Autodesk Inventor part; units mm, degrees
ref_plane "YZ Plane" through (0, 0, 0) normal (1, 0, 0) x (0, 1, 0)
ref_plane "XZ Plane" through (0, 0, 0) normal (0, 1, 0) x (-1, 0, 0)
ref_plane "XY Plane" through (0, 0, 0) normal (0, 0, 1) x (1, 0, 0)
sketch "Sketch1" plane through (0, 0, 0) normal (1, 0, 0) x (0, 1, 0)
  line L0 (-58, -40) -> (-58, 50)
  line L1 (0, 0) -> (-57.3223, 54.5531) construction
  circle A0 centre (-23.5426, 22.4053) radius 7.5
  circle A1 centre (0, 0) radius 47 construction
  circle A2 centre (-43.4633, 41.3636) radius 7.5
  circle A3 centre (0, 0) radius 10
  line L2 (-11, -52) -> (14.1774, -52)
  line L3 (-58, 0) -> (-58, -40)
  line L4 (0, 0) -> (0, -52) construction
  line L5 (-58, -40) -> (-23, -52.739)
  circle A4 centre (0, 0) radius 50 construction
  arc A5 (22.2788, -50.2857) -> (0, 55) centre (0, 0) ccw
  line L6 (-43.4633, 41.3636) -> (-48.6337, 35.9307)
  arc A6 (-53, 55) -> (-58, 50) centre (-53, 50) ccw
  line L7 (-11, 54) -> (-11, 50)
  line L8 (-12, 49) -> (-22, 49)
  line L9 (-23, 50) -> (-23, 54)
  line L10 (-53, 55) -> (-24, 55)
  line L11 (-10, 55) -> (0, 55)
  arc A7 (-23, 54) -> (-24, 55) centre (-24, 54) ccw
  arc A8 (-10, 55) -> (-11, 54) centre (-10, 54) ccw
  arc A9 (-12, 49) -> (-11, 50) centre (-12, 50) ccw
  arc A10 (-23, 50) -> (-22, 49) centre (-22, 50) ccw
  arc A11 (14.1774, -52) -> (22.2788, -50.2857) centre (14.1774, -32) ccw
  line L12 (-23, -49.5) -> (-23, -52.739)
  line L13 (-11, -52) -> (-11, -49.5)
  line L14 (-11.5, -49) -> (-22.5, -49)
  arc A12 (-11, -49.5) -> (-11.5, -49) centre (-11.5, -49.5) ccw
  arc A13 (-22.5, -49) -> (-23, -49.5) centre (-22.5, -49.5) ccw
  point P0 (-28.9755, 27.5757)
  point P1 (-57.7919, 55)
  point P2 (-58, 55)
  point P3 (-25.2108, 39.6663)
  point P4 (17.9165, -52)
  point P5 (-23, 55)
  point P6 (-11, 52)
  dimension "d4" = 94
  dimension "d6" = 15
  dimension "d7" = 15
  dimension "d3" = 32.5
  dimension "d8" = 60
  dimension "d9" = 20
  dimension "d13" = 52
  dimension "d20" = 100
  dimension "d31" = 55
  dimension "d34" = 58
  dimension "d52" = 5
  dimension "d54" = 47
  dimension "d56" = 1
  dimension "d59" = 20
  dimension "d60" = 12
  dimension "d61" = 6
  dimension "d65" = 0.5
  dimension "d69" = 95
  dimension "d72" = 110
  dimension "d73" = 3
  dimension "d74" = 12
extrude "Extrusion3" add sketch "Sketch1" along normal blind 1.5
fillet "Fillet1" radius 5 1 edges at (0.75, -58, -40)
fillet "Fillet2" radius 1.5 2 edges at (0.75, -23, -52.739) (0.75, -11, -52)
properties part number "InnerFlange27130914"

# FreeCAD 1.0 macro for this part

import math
import FreeCAD as App
import Part
import Sketcher
Q = App.Units.Quantity


def edges_at(feature, points):
    """Names of the edges that pass closest to the given points."""
    edges = feature.Shape.Edges
    near = lambda p: min(range(len(edges)), key=lambda i: edges[i].distToShape(Part.Vertex(*p))[0])
    return sorted({f"Edge{near(p) + 1}" for p in points})

doc = App.newDocument("Part")
params = doc.addObject("Spreadsheet::Sheet", "Params")
for row, (alias, value) in enumerate([
    ("sketch1_diameter", "20 mm"),
    ("sketch1_diameter2", "15 mm"),
    ("sketch1_radius", "20 mm"),
    ("sketch1_radius2", "55 mm"),
    ("sketch1_radius3", "1 mm"),
    ("pad1_length", "1.5 mm"),
    ("fillet_radius", "5 mm"),
    ("fillet2_radius", "1.5 mm"),
], start=1):
    params.set(f"A{row}", alias)
    params.set(f"B{row}", "=" + value)
    params.setAlias(f"B{row}", alias)

body = doc.addObject("PartDesign::Body", "Body")

sketch1 = body.newObject("Sketcher::SketchObject", "Sketch")
sketch1.AttachmentSupport = (doc.getObject("YZ_Plane"), [""])
sketch1.MapMode = "FlatFace"
sketch1.addGeometry([
    Part.LineSegment(App.Vector(-58, 50, 0), App.Vector(-58, -40, 0)),
    Part.LineSegment(App.Vector(-58, -40, 0), App.Vector(-23, -52.7, 0)),
    Part.LineSegment(App.Vector(-23, -52.7, 0), App.Vector(-23, -49.5, 0)),
    Part.ArcOfCircle(Part.Circle(App.Vector(-22.5, -49.5, 0), App.Vector(0, 0, 1), 0.5), math.radians(90), math.radians(180)),
    Part.LineSegment(App.Vector(-22.5, -49, 0), App.Vector(-11.5, -49, 0)),
    Part.ArcOfCircle(Part.Circle(App.Vector(-11.5, -49.5, 0), App.Vector(0, 0, 1), 0.5), math.radians(0), math.radians(90)),
    Part.LineSegment(App.Vector(-11, -49.5, 0), App.Vector(-11, -52, 0)),
    Part.LineSegment(App.Vector(-11, -52, 0), App.Vector(14.2, -52, 0)),
    Part.ArcOfCircle(Part.Circle(App.Vector(14.2, -32, 0), App.Vector(0, 0, 1), 20), math.radians(-90), math.radians(-66)),
    Part.ArcOfCircle(Part.Circle(App.Vector(0, 0, 0), App.Vector(0, 0, 1), 55), math.radians(-66), math.radians(90)),
    Part.LineSegment(App.Vector(0, 55, 0), App.Vector(-10, 55, 0)),
    Part.ArcOfCircle(Part.Circle(App.Vector(-10, 54, 0), App.Vector(0, 0, 1), 1), math.radians(90), math.radians(180)),
    Part.LineSegment(App.Vector(-11, 54, 0), App.Vector(-11, 50, 0)),
    Part.ArcOfCircle(Part.Circle(App.Vector(-12, 50, 0), App.Vector(0, 0, 1), 1), math.radians(-90), math.radians(0)),
    Part.LineSegment(App.Vector(-12, 49, 0), App.Vector(-22, 49, 0)),
    Part.ArcOfCircle(Part.Circle(App.Vector(-22, 50, 0), App.Vector(0, 0, 1), 1), math.radians(180), math.radians(270)),
    Part.LineSegment(App.Vector(-23, 50, 0), App.Vector(-23, 54, 0)),
    Part.ArcOfCircle(Part.Circle(App.Vector(-24, 54, 0), App.Vector(0, 0, 1), 1), math.radians(0), math.radians(90)),
    Part.LineSegment(App.Vector(-24, 55, 0), App.Vector(-53, 55, 0)),
    Part.ArcOfCircle(Part.Circle(App.Vector(-53, 50, 0), App.Vector(0, 0, 1), 5), math.radians(90), math.radians(180)),
    Part.Circle(App.Vector(0, 0, 0), App.Vector(0, 0, 1), 10),
    Part.Circle(App.Vector(-23.5, 22.4, 0), App.Vector(0, 0, 1), 7.5),
    Part.Circle(App.Vector(-43.5, 41.4, 0), App.Vector(0, 0, 1), 7.5),
], False)
sketch1.addConstraint([
    Sketcher.Constraint("Coincident", 0, 2, 1, 1),
    Sketcher.Constraint("Coincident", 1, 2, 2, 1),
    Sketcher.Constraint("Tangent", 2, 2, 3, 2),
    Sketcher.Constraint("Tangent", 3, 1, 4, 1),
    Sketcher.Constraint("Tangent", 4, 2, 5, 2),
    Sketcher.Constraint("Tangent", 5, 1, 6, 1),
    Sketcher.Constraint("Coincident", 6, 2, 7, 1),
    Sketcher.Constraint("Tangent", 7, 2, 8, 1),
    Sketcher.Constraint("Tangent", 8, 2, 9, 1),
    Sketcher.Constraint("Tangent", 9, 2, 10, 1),
    Sketcher.Constraint("Tangent", 10, 2, 11, 1),
    Sketcher.Constraint("Tangent", 11, 2, 12, 1),
    Sketcher.Constraint("Tangent", 12, 2, 13, 2),
    Sketcher.Constraint("Tangent", 13, 1, 14, 1),
    Sketcher.Constraint("Tangent", 14, 2, 15, 2),
    Sketcher.Constraint("Tangent", 15, 1, 16, 1),
    Sketcher.Constraint("Tangent", 16, 2, 17, 1),
    Sketcher.Constraint("Tangent", 17, 2, 18, 1),
    Sketcher.Constraint("Tangent", 18, 2, 19, 1),
    Sketcher.Constraint("Tangent", 19, 2, 0, 1),
    Sketcher.Constraint("Vertical", 0),
    Sketcher.Constraint("Vertical", 2),
    Sketcher.Constraint("Horizontal", 4),
    Sketcher.Constraint("Vertical", 6),
    Sketcher.Constraint("Horizontal", 7),
    Sketcher.Constraint("Horizontal", 10),
    Sketcher.Constraint("Vertical", 12),
    Sketcher.Constraint("Horizontal", 14),
    Sketcher.Constraint("Vertical", 16),
    Sketcher.Constraint("Horizontal", 18),
    Sketcher.Constraint("Coincident", 9, 3, -1, 1),
    Sketcher.Constraint("Coincident", 20, 3, -1, 1),
    Sketcher.Constraint("Equal", 3, 5),
    Sketcher.Constraint("Equal", 11, 13),
    Sketcher.Constraint("Equal", 13, 15),
    Sketcher.Constraint("Equal", 15, 17),
    Sketcher.Constraint("Equal", 21, 22),
    Sketcher.Constraint("Horizontal", 11, 3, 17, 3),
    Sketcher.Constraint("Horizontal", 15, 3, 19, 3),
    Sketcher.Constraint("Vertical", 6, 2, 11, 2),
    Sketcher.Constraint("Vertical", 2, 2, 15, 1),
    Sketcher.Constraint("Equal", 10, 14),
    Sketcher.Constraint("Diameter", 20, 20.0),
    Sketcher.Constraint("Diameter", 21, 15.0),
    Sketcher.Constraint("Radius", 8, 20.0),
    Sketcher.Constraint("Radius", 9, 55.0),
    Sketcher.Constraint("Radius", 11, 1.0),
    Sketcher.Constraint("Radius", 19, 5.0),
    Sketcher.Constraint("Radius", 3, 0.5),
    Sketcher.Constraint("Angle", 1, Q("-20 deg")),
    Sketcher.Constraint("DistanceX", 13, 3, -1, 1, 12.0),
    Sketcher.Constraint("DistanceX", 0, 2, -1, 1, 58.0),
    Sketcher.Constraint("DistanceY", 6, 2, -1, 1, 52.0),
    Sketcher.Constraint("DistanceY", 6, 2, 4, 2, 3.0),
    Sketcher.Constraint("DistanceY", 0, 2, 0, 1, 90.0),
    Sketcher.Constraint("DistanceX", 21, 3, -1, 1, 23.5426),
    Sketcher.Constraint("DistanceY", -1, 1, 21, 3, 22.4053),
    Sketcher.Constraint("DistanceX", 22, 3, -1, 1, 43.4633),
    Sketcher.Constraint("DistanceY", -1, 1, 22, 3, 41.3636),
])
sketch1.setExpression("Constraints[42]", "Params.sketch1_diameter")
sketch1.setExpression("Constraints[43]", "Params.sketch1_diameter2")
sketch1.setExpression("Constraints[44]", "Params.sketch1_radius")
sketch1.setExpression("Constraints[45]", "Params.sketch1_radius2")
sketch1.setExpression("Constraints[46]", "Params.sketch1_radius3")
pad1 = body.newObject("PartDesign::Pad", "Pad")
pad1.Profile = sketch1
pad1.setExpression("Length", "Params.pad1_length")
doc.recompute()

fillet = body.newObject("PartDesign::Fillet", "Fillet")
fillet.Base = (pad1, edges_at(pad1, [(0.75, -58, -40)]))
fillet.setExpression("Radius", "Params.fillet_radius")
doc.recompute()

fillet2 = body.newObject("PartDesign::Fillet", "Fillet001")
fillet2.Base = (fillet, edges_at(fillet, [(0.75, -23, -52.739), (0.75, -11, -52)]))
fillet2.setExpression("Radius", "Params.fillet2_radius")

doc.recompute()
